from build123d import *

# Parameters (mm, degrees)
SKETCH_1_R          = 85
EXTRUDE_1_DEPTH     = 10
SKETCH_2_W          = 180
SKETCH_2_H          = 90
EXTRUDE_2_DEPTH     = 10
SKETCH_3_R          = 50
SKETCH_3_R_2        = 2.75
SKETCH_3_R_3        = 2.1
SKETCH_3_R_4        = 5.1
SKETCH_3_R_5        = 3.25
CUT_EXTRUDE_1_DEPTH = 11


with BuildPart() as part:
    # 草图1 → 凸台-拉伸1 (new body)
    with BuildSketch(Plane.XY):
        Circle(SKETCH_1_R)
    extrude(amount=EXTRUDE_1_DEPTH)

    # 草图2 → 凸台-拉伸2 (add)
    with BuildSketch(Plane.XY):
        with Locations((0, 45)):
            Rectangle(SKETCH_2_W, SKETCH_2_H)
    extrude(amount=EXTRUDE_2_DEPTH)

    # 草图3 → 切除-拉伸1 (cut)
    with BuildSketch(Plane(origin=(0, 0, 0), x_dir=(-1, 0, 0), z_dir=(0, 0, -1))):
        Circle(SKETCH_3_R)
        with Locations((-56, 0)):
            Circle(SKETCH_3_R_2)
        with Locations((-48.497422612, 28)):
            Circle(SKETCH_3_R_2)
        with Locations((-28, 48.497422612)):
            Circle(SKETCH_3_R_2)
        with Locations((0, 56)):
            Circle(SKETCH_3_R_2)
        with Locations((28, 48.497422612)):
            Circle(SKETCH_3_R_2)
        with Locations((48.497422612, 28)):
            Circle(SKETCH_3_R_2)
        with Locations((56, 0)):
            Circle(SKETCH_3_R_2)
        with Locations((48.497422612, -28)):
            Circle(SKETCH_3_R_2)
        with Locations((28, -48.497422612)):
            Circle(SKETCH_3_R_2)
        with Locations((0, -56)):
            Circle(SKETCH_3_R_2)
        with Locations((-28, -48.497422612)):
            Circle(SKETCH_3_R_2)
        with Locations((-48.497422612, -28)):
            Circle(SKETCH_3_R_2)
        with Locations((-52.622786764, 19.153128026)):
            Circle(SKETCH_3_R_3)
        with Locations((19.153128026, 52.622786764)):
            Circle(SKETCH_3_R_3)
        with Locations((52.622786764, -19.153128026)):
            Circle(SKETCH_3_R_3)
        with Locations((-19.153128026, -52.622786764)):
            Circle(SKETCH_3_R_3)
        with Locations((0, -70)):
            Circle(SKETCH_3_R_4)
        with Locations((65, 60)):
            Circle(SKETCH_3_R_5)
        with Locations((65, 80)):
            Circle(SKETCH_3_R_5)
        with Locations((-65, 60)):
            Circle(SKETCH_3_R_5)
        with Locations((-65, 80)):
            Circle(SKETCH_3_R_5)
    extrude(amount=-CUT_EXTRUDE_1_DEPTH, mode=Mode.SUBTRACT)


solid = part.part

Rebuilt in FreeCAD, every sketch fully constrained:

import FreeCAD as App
import Part
import Sketcher

doc = App.newDocument("Part")
body = doc.addObject("PartDesign::Body", "Body")

# Sketch on XY plane
sketch1 = doc.addObject("Sketcher::SketchObject", "Sketch")
body.addObject(sketch1)
sketch1.AttachmentSupport = (doc.XY_Plane, [""])
sketch1.MapMode = "FlatFace"
sketch1.addGeometry(Part.Circle(App.Vector(0, 0, 0), App.Vector(0, 0, 1), 85), False)
sketch1.addConstraint(Sketcher.Constraint("Coincident", 0, 3, -1, 1))
sketch1.addConstraint(Sketcher.Constraint("Diameter", 0, 170.0))
pad1 = doc.addObject("PartDesign::Pad", "Pad")
body.addObject(pad1)
pad1.Profile = sketch1
pad1.Length = 10

# Sketch on XY plane
sketch2 = doc.addObject("Sketcher::SketchObject", "Sketch001")
body.addObject(sketch2)
sketch2.AttachmentSupport = (doc.XY_Plane, [""])
sketch2.MapMode = "FlatFace"
sketch2.addGeometry(Part.LineSegment(App.Vector(-90, 90, 0), App.Vector(-90, 0, 0)), False)
sketch2.addGeometry(Part.LineSegment(App.Vector(-90, 0, 0), App.Vector(90, 0, 0)), False)
sketch2.addGeometry(Part.LineSegment(App.Vector(90, 0, 0), App.Vector(90, 90, 0)), False)
sketch2.addGeometry(Part.LineSegment(App.Vector(90, 90, 0), App.Vector(-90, 90, 0)), False)
sketch2.addConstraint(Sketcher.Constraint("Coincident", 0, 2, 1, 1))
sketch2.addConstraint(Sketcher.Constraint("Coincident", 1, 2, 2, 1))
sketch2.addConstraint(Sketcher.Constraint("Coincident", 2, 2, 3, 1))
sketch2.addConstraint(Sketcher.Constraint("Coincident", 3, 2, 0, 1))
sketch2.addConstraint(Sketcher.Constraint("Vertical", 0))
sketch2.addConstraint(Sketcher.Constraint("Horizontal", 1))
sketch2.addConstraint(Sketcher.Constraint("Vertical", 2))
sketch2.addConstraint(Sketcher.Constraint("Horizontal", 3))
sketch2.addConstraint(Sketcher.Constraint("Symmetric", 0, 2, 1, 2, -1, 1))
sketch2.addConstraint(Sketcher.Constraint("DistanceX", 1, 1, 1, 2, 180.0))
sketch2.addConstraint(Sketcher.Constraint("DistanceY", 0, 2, 0, 1, 90.0))
pad2 = doc.addObject("PartDesign::Pad", "Pad001")
body.addObject(pad2)
pad2.Profile = sketch2
pad2.Length = 10

# Sketch on XY plane
sketch3 = doc.addObject("Sketcher::SketchObject", "Sketch002")
body.addObject(sketch3)
sketch3.AttachmentSupport = (doc.XY_Plane, [""])
sketch3.MapMode = "FlatFace"
sketch3.addGeometry(Part.Circle(App.Vector(0, 0, 0), App.Vector(0, 0, 1), 50), False)
sketch3.addGeometry(Part.Circle(App.Vector(56, 0, 0), App.Vector(0, 0, 1), 2.8), False)
sketch3.addGeometry(Part.Circle(App.Vector(48.5, 28, 0), App.Vector(0, 0, 1), 2.8), False)
sketch3.addGeometry(Part.Circle(App.Vector(28, 48.5, 0), App.Vector(0, 0, 1), 2.8), False)
sketch3.addGeometry(Part.Circle(App.Vector(0, 56, 0), App.Vector(0, 0, 1), 2.8), False)
sketch3.addGeometry(Part.Circle(App.Vector(-28, 48.5, 0), App.Vector(0, 0, 1), 2.8), False)
sketch3.addGeometry(Part.Circle(App.Vector(-48.5, 28, 0), App.Vector(0, 0, 1), 2.8), False)
sketch3.addGeometry(Part.Circle(App.Vector(-56, 0, 0), App.Vector(0, 0, 1), 2.8), False)
sketch3.addGeometry(Part.Circle(App.Vector(-48.5, -28, 0), App.Vector(0, 0, 1), 2.8), False)
sketch3.addGeometry(Part.Circle(App.Vector(-28, -48.5, 0), App.Vector(0, 0, 1), 2.8), False)
sketch3.addGeometry(Part.Circle(App.Vector(0, -56, 0), App.Vector(0, 0, 1), 2.8), False)
sketch3.addGeometry(Part.Circle(App.Vector(28, -48.5, 0), App.Vector(0, 0, 1), 2.8), False)
sketch3.addGeometry(Part.Circle(App.Vector(48.5, -28, 0), App.Vector(0, 0, 1), 2.8), False)
sketch3.addGeometry(Part.Circle(App.Vector(52.6, 19.2, 0), App.Vector(0, 0, 1), 2.1), False)
sketch3.addGeometry(Part.Circle(App.Vector(-19.2, 52.6, 0), App.Vector(0, 0, 1), 2.1), False)
sketch3.addGeometry(Part.Circle(App.Vector(-52.6, -19.2, 0), App.Vector(0, 0, 1), 2.1), False)
sketch3.addGeometry(Part.Circle(App.Vector(19.2, -52.6, 0), App.Vector(0, 0, 1), 2.1), False)
sketch3.addGeometry(Part.Circle(App.Vector(0, -70, 0), App.Vector(0, 0, 1), 5.1), False)
sketch3.addGeometry(Part.Circle(App.Vector(-65, 60, 0), App.Vector(0, 0, 1), 3.2), False)
sketch3.addGeometry(Part.Circle(App.Vector(-65, 80, 0), App.Vector(0, 0, 1), 3.2), False)
sketch3.addGeometry(Part.Circle(App.Vector(65, 60, 0), App.Vector(0, 0, 1), 3.2), False)
sketch3.addGeometry(Part.Circle(App.Vector(65, 80, 0), App.Vector(0, 0, 1), 3.2), False)
sketch3.addConstraint(Sketcher.Constraint("Coincident", 0, 3, -1, 1))
sketch3.addConstraint(Sketcher.Constraint("Equal", 1, 2))
sketch3.addConstraint(Sketcher.Constraint("Equal", 2, 3))
sketch3.addConstraint(Sketcher.Constraint("Equal", 3, 4))
sketch3.addConstraint(Sketcher.Constraint("Equal", 4, 5))
sketch3.addConstraint(Sketcher.Constraint("Equal", 5, 6))
sketch3.addConstraint(Sketcher.Constraint("Equal", 6, 7))
sketch3.addConstraint(Sketcher.Constraint("Equal", 7, 8))
sketch3.addConstraint(Sketcher.Constraint("Equal", 8, 9))
sketch3.addConstraint(Sketcher.Constraint("Equal", 9, 10))
sketch3.addConstraint(Sketcher.Constraint("Equal", 10, 11))
sketch3.addConstraint(Sketcher.Constraint("Equal", 11, 12))
sketch3.addConstraint(Sketcher.Constraint("Equal", 13, 14))
sketch3.addConstraint(Sketcher.Constraint("Equal", 14, 15))
sketch3.addConstraint(Sketcher.Constraint("Equal", 15, 16))
sketch3.addConstraint(Sketcher.Constraint("Equal", 18, 19))
sketch3.addConstraint(Sketcher.Constraint("Equal", 19, 20))
sketch3.addConstraint(Sketcher.Constraint("Equal", 20, 21))
sketch3.addConstraint(Sketcher.Constraint("Symmetric", 1, 3, 7, 3, -1, 1))
sketch3.addConstraint(Sketcher.Constraint("Symmetric", 2, 3, 8, 3, -1, 1))
sketch3.addConstraint(Sketcher.Constraint("Symmetric", 3, 3, 9, 3, -1, 1))
sketch3.addConstraint(Sketcher.Constraint("Symmetric", 4, 3, 10, 3, -1, 1))
sketch3.addConstraint(Sketcher.Constraint("Symmetric", 5, 3, 11, 3, -1, 1))
sketch3.addConstraint(Sketcher.Constraint("Symmetric", 6, 3, 12, 3, -1, 1))
sketch3.addConstraint(Sketcher.Constraint("Symmetric", 13, 3, 15, 3, -1, 1))
sketch3.addConstraint(Sketcher.Constraint("Symmetric", 14, 3, 16, 3, -1, 1))
sketch3.addConstraint(Sketcher.Constraint("Symmetric", 3, 3, 5, 3, -2))
sketch3.addConstraint(Sketcher.Constraint("Symmetric", 2, 3, 6, 3, -2))
sketch3.addConstraint(Sketcher.Constraint("Symmetric", 18, 3, 20, 3, -2))
sketch3.addConstraint(Sketcher.Constraint("Symmetric", 19, 3, 21, 3, -2))
sketch3.addConstraint(Sketcher.Constraint("PointOnObject", 1, 3, -1))
sketch3.addConstraint(Sketcher.Constraint("PointOnObject", 4, 3, -2))
sketch3.addConstraint(Sketcher.Constraint("PointOnObject", 17, 3, -2))
sketch3.addConstraint(Sketcher.Constraint("Vertical", 18, 3, 19, 3))
sketch3.addConstraint(Sketcher.Constraint("Diameter", 0, 100.0))
sketch3.addConstraint(Sketcher.Constraint("Diameter", 1, 5.5))
sketch3.addConstraint(Sketcher.Constraint("Diameter", 13, 4.2))
sketch3.addConstraint(Sketcher.Constraint("Diameter", 17, 10.2))
sketch3.addConstraint(Sketcher.Constraint("Diameter", 18, 6.5))
sketch3.addConstraint(Sketcher.Constraint("DistanceX", -1, 1, 1, 3, 56.0))
sketch3.addConstraint(Sketcher.Constraint("DistanceY", -1, 1, 2, 3, 28.0))
sketch3.addConstraint(Sketcher.Constraint("DistanceX", -1, 1, 3, 3, 28.0))
sketch3.addConstraint(Sketcher.Constraint("DistanceY", -1, 1, 4, 3, 56.0))
sketch3.addConstraint(Sketcher.Constraint("DistanceY", 17, 3, -1, 1, 70.0))
sketch3.addConstraint(Sketcher.Constraint("DistanceX", 18, 3, -1, 1, 65.0))
sketch3.addConstraint(Sketcher.Constraint("DistanceY", -1, 1, 18, 3, 60.0))
sketch3.addConstraint(Sketcher.Constraint("DistanceY", -1, 1, 19, 3, 80.0))
sketch3.addConstraint(Sketcher.Constraint("DistanceY", -1, 1, 13, 3, 19.153128))
sketch3.addConstraint(Sketcher.Constraint("DistanceX", 14, 3, -1, 1, 19.153128))
sketch3.addConstraint(Sketcher.Constraint("DistanceX", -1, 1, 2, 3, 48.497423))
sketch3.addConstraint(Sketcher.Constraint("DistanceY", -1, 1, 3, 3, 48.497423))
sketch3.addConstraint(Sketcher.Constraint("DistanceX", -1, 1, 13, 3, 52.622787))
sketch3.addConstraint(Sketcher.Constraint("DistanceY", -1, 1, 14, 3, 52.622787))
pocket1 = doc.addObject("PartDesign::Pocket", "Pocket")
body.addObject(pocket1)
pocket1.Profile = sketch3
pocket1.Length = 11
pocket1.Reversed = True

doc.recompute()
